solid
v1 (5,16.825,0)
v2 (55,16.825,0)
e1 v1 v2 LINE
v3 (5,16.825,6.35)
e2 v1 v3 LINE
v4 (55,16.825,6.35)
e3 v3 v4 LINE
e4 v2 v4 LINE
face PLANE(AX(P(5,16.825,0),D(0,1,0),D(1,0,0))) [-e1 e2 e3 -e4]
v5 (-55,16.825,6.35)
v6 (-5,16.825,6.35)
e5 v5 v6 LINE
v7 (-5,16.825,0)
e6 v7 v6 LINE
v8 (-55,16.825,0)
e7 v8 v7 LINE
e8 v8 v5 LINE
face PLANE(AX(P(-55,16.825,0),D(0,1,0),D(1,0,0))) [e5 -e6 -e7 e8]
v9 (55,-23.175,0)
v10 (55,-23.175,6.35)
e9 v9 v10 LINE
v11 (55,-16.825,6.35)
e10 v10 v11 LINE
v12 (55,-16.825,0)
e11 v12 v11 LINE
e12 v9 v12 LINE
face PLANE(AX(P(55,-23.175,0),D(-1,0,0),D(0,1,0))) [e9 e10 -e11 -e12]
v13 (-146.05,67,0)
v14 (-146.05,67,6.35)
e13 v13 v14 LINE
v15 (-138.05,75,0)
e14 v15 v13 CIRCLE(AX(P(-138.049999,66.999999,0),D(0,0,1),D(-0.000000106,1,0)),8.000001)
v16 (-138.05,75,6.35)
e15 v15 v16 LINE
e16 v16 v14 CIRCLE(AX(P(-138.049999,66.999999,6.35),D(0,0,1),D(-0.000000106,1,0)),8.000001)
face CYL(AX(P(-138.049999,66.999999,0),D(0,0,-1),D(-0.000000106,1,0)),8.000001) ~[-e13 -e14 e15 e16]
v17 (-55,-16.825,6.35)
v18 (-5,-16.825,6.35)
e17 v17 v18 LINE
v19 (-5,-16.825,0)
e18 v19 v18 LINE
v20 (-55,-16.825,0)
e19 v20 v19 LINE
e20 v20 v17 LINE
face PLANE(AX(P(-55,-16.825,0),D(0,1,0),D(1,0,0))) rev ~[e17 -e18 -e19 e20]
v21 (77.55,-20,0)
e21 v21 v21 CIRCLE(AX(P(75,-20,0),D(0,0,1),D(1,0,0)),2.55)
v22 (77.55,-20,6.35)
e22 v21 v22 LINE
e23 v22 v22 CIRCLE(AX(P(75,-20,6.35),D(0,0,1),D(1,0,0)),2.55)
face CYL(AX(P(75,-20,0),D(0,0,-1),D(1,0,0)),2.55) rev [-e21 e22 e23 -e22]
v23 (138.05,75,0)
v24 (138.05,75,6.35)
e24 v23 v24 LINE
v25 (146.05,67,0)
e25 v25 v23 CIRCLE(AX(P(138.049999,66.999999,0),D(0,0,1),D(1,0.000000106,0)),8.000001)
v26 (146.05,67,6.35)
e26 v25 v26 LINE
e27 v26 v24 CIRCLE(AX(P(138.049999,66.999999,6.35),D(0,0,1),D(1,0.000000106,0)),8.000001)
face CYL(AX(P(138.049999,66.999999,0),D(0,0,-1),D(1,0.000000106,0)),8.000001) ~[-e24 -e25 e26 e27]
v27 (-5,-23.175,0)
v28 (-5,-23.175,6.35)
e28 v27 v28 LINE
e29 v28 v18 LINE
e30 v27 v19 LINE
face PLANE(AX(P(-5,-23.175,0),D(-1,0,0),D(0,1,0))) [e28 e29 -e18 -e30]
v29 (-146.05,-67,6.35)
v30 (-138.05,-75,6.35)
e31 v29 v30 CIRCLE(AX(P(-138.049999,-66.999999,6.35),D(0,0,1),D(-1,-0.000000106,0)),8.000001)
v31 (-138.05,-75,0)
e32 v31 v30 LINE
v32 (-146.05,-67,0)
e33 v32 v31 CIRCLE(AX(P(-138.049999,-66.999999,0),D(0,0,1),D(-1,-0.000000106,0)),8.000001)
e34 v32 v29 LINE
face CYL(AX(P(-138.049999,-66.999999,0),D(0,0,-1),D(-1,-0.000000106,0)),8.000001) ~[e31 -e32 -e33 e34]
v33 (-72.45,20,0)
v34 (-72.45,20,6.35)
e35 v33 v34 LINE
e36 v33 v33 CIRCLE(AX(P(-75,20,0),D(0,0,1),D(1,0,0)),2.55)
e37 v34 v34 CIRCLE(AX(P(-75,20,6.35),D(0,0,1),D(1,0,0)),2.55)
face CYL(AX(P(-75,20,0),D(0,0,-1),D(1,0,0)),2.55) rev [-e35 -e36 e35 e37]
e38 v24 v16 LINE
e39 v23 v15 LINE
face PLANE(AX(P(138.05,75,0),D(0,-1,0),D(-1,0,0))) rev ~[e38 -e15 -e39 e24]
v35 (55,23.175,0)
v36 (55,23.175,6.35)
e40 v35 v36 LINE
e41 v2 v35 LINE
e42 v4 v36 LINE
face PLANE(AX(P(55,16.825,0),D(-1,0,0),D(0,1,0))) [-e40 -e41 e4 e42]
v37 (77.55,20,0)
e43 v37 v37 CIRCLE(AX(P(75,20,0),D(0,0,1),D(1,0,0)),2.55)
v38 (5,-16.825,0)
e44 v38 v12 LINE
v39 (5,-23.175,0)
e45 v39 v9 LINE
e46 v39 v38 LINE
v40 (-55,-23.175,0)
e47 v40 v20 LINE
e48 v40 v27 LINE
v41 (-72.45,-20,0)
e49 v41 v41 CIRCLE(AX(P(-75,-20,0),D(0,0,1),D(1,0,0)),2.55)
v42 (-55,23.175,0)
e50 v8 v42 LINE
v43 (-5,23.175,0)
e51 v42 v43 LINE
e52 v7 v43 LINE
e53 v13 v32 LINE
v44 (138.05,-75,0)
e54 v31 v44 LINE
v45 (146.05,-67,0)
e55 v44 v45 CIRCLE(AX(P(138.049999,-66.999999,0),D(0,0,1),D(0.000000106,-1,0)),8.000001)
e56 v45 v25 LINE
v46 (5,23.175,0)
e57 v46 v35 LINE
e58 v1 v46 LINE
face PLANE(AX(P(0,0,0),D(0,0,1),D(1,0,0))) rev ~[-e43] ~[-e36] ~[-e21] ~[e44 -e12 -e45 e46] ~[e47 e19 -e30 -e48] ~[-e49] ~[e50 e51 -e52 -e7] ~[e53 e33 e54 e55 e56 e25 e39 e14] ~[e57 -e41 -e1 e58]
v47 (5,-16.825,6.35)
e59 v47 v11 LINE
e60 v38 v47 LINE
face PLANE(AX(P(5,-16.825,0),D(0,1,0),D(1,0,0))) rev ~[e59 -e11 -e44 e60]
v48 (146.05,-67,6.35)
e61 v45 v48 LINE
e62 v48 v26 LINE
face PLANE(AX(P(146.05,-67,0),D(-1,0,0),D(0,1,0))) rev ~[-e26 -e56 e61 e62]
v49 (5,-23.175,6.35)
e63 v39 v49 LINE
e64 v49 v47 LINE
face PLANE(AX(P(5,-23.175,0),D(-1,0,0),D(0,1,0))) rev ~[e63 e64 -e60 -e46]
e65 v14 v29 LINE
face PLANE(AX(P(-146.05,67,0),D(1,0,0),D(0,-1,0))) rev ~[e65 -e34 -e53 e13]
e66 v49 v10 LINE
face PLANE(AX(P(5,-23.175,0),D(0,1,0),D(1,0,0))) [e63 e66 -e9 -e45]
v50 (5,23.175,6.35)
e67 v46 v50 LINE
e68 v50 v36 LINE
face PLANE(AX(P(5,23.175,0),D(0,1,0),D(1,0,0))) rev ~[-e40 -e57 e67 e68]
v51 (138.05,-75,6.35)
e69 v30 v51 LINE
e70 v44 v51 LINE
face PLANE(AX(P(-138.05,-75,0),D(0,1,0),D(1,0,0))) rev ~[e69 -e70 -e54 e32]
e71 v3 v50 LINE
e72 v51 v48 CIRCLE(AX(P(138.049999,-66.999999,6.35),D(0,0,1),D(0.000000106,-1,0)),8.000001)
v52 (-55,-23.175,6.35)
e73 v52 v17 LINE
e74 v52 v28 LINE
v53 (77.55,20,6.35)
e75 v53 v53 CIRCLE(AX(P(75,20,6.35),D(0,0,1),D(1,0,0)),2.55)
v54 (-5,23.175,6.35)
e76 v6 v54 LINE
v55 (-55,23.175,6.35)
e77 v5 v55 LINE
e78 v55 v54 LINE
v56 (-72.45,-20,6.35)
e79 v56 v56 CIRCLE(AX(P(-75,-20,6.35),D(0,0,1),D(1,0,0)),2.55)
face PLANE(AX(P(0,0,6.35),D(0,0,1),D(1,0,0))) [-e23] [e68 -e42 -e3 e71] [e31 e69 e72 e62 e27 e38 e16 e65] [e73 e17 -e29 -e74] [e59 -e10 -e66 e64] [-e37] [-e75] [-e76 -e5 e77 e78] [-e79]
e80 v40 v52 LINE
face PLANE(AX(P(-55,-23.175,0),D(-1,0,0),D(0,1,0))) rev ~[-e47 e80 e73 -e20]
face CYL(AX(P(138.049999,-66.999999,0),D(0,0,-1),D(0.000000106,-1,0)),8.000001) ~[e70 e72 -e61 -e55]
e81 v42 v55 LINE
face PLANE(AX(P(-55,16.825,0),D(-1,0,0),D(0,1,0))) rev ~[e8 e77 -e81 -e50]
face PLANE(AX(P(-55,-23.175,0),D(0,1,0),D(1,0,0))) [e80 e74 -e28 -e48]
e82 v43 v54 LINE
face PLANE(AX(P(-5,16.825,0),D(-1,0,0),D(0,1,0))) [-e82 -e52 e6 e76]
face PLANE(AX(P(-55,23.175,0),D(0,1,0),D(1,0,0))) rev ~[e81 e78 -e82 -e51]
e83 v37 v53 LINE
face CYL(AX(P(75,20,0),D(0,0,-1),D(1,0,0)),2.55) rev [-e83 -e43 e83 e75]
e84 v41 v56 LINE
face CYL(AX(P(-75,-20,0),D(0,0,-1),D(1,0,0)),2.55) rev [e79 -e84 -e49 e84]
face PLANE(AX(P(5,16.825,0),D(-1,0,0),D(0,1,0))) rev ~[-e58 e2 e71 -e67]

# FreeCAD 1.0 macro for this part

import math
import FreeCAD as App
import Part
import Sketcher

V = App.Vector
Q = App.Units.Quantity

doc = App.newDocument("Part")
params = doc.addObject("Spreadsheet::Sheet", "Params")
for row, (alias, value) in enumerate([
    ("sketch1_radius", "8.000001 mm"),
    ("sketch1_diameter", "5.1 mm"),
    ("sketch1_width", "50 mm"),
    ("sketch1_height", "134 mm"),
    ("sketch1_width2", "276.1 mm"),
    ("pad1_length", "6.35 mm"),
], start=1):
    params.set(f"A{row}", alias)
    params.set(f"B{row}", "=" + value)
    params.setAlias(f"B{row}", alias)

body = doc.addObject("PartDesign::Body", "Body")

sketch1 = body.newObject("Sketcher::SketchObject", "Sketch")
sketch1.AttachmentSupport = (doc.getObject("XY_Plane"), [""])
sketch1.MapMode = "FlatFace"
sketch1.addGeometry([
    Part.ArcOfCircle(Part.Circle(V(138, 67, 0), V(0, 0, 1), 8), math.radians(0), math.radians(90)),
    Part.LineSegment(V(138.1, 75, 0), V(-138.1, 75, 0)),
    Part.ArcOfCircle(Part.Circle(V(-138, 67, 0), V(0, 0, 1), 8), math.radians(90), math.radians(180)),
    Part.LineSegment(V(-146.1, 67, 0), V(-146.1, -67, 0)),
    Part.ArcOfCircle(Part.Circle(V(-138, -67, 0), V(0, 0, 1), 8), math.radians(-180), math.radians(-90)),
    Part.LineSegment(V(-138.1, -75, 0), V(138.1, -75, 0)),
    Part.ArcOfCircle(Part.Circle(V(138, -67, 0), V(0, 0, 1), 8), math.radians(-90), math.radians(0)),
    Part.LineSegment(V(146.1, -67, 0), V(146.1, 67, 0)),
    Part.Circle(V(-75, -20, 0), V(0, 0, 1), 2.5),
    Part.LineSegment(V(-5, -23.2, 0), V(-55, -23.2, 0)),
    Part.LineSegment(V(-55, -23.2, 0), V(-55, -16.8, 0)),
    Part.LineSegment(V(-55, -16.8, 0), V(-5, -16.8, 0)),
    Part.LineSegment(V(-5, -16.8, 0), V(-5, -23.2, 0)),
    Part.LineSegment(V(55, -23.2, 0), V(5, -23.2, 0)),
    Part.LineSegment(V(5, -23.2, 0), V(5, -16.8, 0)),
    Part.LineSegment(V(5, -16.8, 0), V(55, -16.8, 0)),
    Part.LineSegment(V(55, -16.8, 0), V(55, -23.2, 0)),
    Part.Circle(V(75, -20, 0), V(0, 0, 1), 2.5),
    Part.Circle(V(-75, 20, 0), V(0, 0, 1), 2.5),
    Part.LineSegment(V(-5, 16.8, 0), V(-55, 16.8, 0)),
    Part.LineSegment(V(-55, 16.8, 0), V(-55, 23.2, 0)),
    Part.LineSegment(V(-55, 23.2, 0), V(-5, 23.2, 0)),
    Part.LineSegment(V(-5, 23.2, 0), V(-5, 16.8, 0)),
    Part.LineSegment(V(55, 16.8, 0), V(5, 16.8, 0)),
    Part.LineSegment(V(5, 16.8, 0), V(5, 23.2, 0)),
    Part.LineSegment(V(5, 23.2, 0), V(55, 23.2, 0)),
    Part.LineSegment(V(55, 23.2, 0), V(55, 16.8, 0)),
    Part.Circle(V(75, 20, 0), V(0, 0, 1), 2.5),
], False)
sketch1.addConstraint([
    Sketcher.Constraint("Tangent", 0, 2, 1, 1),
    Sketcher.Constraint("Tangent", 1, 2, 2, 1),
    Sketcher.Constraint("Tangent", 2, 2, 3, 1),
    Sketcher.Constraint("Tangent", 3, 2, 4, 1),
    Sketcher.Constraint("Tangent", 4, 2, 5, 1),
    Sketcher.Constraint("Tangent", 5, 2, 6, 1),
    Sketcher.Constraint("Tangent", 6, 2, 7, 1),
    Sketcher.Constraint("Tangent", 7, 2, 0, 1),
    Sketcher.Constraint("Coincident", 9, 2, 10, 1),
    Sketcher.Constraint("Coincident", 10, 2, 11, 1),
    Sketcher.Constraint("Coincident", 11, 2, 12, 1),
    Sketcher.Constraint("Coincident", 12, 2, 9, 1),
    Sketcher.Constraint("Coincident", 13, 2, 14, 1),
    Sketcher.Constraint("Coincident", 14, 2, 15, 1),
    Sketcher.Constraint("Coincident", 15, 2, 16, 1),
    Sketcher.Constraint("Coincident", 16, 2, 13, 1),
    Sketcher.Constraint("Coincident", 19, 2, 20, 1),
    Sketcher.Constraint("Coincident", 20, 2, 21, 1),
    Sketcher.Constraint("Coincident", 21, 2, 22, 1),
    Sketcher.Constraint("Coincident", 22, 2, 19, 1),
    Sketcher.Constraint("Coincident", 23, 2, 24, 1),
    Sketcher.Constraint("Coincident", 24, 2, 25, 1),
    Sketcher.Constraint("Coincident", 25, 2, 26, 1),
    Sketcher.Constraint("Coincident", 26, 2, 23, 1),
    Sketcher.Constraint("Horizontal", 1),
    Sketcher.Constraint("Vertical", 3),
    Sketcher.Constraint("Horizontal", 5),
    Sketcher.Constraint("Vertical", 7),
    Sketcher.Constraint("Horizontal", 9),
    Sketcher.Constraint("Vertical", 10),
    Sketcher.Constraint("Horizontal", 11),
    Sketcher.Constraint("Vertical", 12),
    Sketcher.Constraint("Horizontal", 13),
    Sketcher.Constraint("Vertical", 14),
    Sketcher.Constraint("Horizontal", 15),
    Sketcher.Constraint("Vertical", 16),
    Sketcher.Constraint("Horizontal", 19),
    Sketcher.Constraint("Vertical", 20),
    Sketcher.Constraint("Horizontal", 21),
    Sketcher.Constraint("Vertical", 22),
    Sketcher.Constraint("Horizontal", 23),
    Sketcher.Constraint("Vertical", 24),
    Sketcher.Constraint("Horizontal", 25),
    Sketcher.Constraint("Vertical", 26),
    Sketcher.Constraint("Equal", 0, 2),
    Sketcher.Constraint("Equal", 2, 4),
    Sketcher.Constraint("Equal", 4, 6),
    Sketcher.Constraint("Equal", 8, 17),
    Sketcher.Constraint("Equal", 17, 18),
    Sketcher.Constraint("Equal", 18, 27),
    Sketcher.Constraint("Symmetric", 0, 3, 4, 3, -1, 1),
    Sketcher.Constraint("Symmetric", 17, 3, 18, 3, -1, 1),
    Sketcher.Constraint("Symmetric", 8, 3, 27, 3, -1, 1),
    Sketcher.Constraint("Symmetric", 15, 2, 19, 2, -1, 1),
    Sketcher.Constraint("Symmetric", 13, 2, 21, 2, -1, 1),
    Sketcher.Constraint("Symmetric", 11, 2, 23, 2, -1, 1),
    Sketcher.Constraint("Symmetric", 9, 2, 25, 2, -1, 1),
    Sketcher.Constraint("Symmetric", 8, 3, 17, 3, -2),
    Sketcher.Constraint("Symmetric", 12, 2, 13, 2, -2),
    Sketcher.Constraint("Symmetric", 10, 2, 15, 2, -2),
    Sketcher.Constraint("Radius", 0, Q("8.000001 mm")),
    Sketcher.Constraint("Diameter", 8, Q("5.1 mm")),
    Sketcher.Constraint("DistanceX", 9, 2, 9, 1, Q("50 mm")),
    Sketcher.Constraint("DistanceY", 3, 2, 3, 1, Q("134 mm")),
    Sketcher.Constraint("DistanceX", 1, 2, 1, 1, Q("276.1 mm")),
    Sketcher.Constraint("DistanceX", 8, 3, -1, 1, Q("75 mm")),
    Sketcher.Constraint("DistanceY", 8, 3, -1, 1, Q("20 mm")),
    Sketcher.Constraint("DistanceX", 9, 2, -1, 1, Q("55 mm")),
    Sketcher.Constraint("DistanceY", 9, 2, 19, 2, Q("40 mm")),
    Sketcher.Constraint("DistanceY", 10, 1, 10, 2, Q("6.35 mm")),
])
sketch1.setExpression("Constraints[60]", "Params.sketch1_radius")
sketch1.setExpression("Constraints[61]", "Params.sketch1_diameter")
sketch1.setExpression("Constraints[62]", "Params.sketch1_width")
sketch1.setExpression("Constraints[63]", "Params.sketch1_height")
sketch1.setExpression("Constraints[64]", "Params.sketch1_width2")
pad1 = body.newObject("PartDesign::Pad", "Pad")
pad1.Profile = sketch1
pad1.setExpression("Length", "Params.pad1_length")

doc.recompute()
